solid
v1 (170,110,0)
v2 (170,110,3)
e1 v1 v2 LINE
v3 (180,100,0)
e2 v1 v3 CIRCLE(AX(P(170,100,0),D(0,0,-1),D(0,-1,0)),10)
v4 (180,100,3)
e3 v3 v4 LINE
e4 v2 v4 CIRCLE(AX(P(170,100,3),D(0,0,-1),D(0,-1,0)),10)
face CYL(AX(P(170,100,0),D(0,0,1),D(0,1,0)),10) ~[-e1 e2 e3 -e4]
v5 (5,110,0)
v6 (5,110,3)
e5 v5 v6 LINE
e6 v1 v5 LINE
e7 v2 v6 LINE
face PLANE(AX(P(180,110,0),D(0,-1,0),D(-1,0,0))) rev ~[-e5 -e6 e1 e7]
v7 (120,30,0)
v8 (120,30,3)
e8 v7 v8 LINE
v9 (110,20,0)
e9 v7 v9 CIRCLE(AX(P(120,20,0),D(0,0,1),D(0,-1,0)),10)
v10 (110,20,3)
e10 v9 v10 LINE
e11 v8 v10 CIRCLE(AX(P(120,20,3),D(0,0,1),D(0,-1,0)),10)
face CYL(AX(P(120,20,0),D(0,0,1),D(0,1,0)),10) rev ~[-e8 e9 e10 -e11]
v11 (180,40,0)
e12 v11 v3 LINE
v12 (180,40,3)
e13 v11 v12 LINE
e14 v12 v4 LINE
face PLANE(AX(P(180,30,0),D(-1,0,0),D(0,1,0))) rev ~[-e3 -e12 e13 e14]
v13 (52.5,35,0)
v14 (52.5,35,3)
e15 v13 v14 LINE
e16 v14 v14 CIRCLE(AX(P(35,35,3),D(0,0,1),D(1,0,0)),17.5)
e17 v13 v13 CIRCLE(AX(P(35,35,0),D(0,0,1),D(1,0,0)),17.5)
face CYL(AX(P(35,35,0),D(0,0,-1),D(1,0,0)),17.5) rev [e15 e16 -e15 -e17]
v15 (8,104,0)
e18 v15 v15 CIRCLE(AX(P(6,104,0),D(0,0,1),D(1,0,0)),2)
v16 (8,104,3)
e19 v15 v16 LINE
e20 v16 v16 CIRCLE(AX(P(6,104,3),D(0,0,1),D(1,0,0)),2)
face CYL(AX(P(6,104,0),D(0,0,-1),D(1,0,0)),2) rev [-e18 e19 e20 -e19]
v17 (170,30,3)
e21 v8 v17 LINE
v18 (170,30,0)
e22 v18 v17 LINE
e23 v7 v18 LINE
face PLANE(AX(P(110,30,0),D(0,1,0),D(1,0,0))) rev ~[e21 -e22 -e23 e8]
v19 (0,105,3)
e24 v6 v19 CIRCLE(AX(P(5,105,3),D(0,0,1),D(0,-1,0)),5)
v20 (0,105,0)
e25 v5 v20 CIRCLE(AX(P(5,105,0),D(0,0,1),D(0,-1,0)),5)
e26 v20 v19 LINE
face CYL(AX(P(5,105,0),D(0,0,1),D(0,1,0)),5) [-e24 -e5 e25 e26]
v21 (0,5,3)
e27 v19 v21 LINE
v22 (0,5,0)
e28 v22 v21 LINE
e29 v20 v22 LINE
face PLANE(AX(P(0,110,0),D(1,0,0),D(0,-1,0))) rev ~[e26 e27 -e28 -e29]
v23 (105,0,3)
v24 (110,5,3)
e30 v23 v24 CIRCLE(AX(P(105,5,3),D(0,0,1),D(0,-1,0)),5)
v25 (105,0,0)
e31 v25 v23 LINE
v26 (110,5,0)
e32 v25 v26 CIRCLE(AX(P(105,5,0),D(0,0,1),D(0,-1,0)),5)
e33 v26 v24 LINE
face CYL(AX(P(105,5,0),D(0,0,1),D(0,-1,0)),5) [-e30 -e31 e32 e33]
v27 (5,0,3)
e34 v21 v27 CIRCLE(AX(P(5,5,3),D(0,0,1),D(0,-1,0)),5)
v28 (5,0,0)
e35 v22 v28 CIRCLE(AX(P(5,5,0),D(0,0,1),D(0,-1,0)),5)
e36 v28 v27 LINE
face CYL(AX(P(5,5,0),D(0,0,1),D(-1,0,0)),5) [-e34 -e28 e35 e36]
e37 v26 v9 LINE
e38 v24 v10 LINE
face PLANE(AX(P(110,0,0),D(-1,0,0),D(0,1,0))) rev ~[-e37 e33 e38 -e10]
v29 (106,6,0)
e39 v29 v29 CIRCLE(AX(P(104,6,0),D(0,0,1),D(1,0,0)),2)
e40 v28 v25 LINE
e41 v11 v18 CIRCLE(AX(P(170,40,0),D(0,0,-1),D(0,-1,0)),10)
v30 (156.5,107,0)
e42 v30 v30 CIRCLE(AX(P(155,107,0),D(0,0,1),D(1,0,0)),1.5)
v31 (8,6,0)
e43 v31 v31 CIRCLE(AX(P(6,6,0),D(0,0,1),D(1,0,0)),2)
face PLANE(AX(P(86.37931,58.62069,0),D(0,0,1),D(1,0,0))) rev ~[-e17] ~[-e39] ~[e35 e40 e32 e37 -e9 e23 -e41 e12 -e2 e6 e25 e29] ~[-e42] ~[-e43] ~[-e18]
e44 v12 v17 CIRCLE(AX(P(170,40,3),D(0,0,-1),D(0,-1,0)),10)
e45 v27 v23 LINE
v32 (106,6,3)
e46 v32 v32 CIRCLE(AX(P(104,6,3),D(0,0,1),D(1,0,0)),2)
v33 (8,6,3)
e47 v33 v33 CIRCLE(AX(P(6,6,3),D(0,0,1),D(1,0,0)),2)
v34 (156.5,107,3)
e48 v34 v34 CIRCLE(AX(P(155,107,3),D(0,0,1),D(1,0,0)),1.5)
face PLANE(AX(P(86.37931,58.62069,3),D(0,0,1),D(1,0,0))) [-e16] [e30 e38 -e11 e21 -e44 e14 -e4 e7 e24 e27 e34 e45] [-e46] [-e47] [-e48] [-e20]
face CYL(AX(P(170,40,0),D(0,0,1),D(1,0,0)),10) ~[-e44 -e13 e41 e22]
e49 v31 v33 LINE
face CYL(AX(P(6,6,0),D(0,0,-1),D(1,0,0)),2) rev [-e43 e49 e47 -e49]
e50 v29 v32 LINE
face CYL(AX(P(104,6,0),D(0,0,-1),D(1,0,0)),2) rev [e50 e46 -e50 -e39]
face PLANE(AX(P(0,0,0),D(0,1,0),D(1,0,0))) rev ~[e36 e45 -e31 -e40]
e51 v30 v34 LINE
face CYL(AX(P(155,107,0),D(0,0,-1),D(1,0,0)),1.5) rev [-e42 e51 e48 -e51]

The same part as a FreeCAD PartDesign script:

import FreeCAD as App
import Part
import Sketcher
Q = App.Units.Quantity


def edges_at(feature, points):
    """Names of the edges that pass closest to the given points."""
    edges = feature.Shape.Edges
    near = lambda p: min(range(len(edges)), key=lambda i: edges[i].distToShape(Part.Vertex(*p))[0])
    return sorted({f"Edge{near(p) + 1}" for p in points})

doc = App.newDocument("Part")
body = doc.addObject("PartDesign::Body", "Body")

sketch1 = body.newObject("Sketcher::SketchObject", "Sketch")
sketch1.AttachmentSupport = (doc.getObject("XY_Plane"), [""])
sketch1.MapMode = "FlatFace"
sketch1.addGeometry([
    Part.LineSegment(App.Vector(180, 110, 0), App.Vector(0, 110, 0)),
    Part.LineSegment(App.Vector(0, 110, 0), App.Vector(0, 0, 0)),
    Part.LineSegment(App.Vector(0, 0, 0), App.Vector(110, 0, 0)),
    Part.LineSegment(App.Vector(110, 0, 0), App.Vector(110, 30, 0)),
    Part.LineSegment(App.Vector(110, 30, 0), App.Vector(180, 30, 0)),
    Part.LineSegment(App.Vector(180, 30, 0), App.Vector(180, 110, 0)),
    Part.Circle(App.Vector(6, 6, 0), App.Vector(0, 0, 1), 2),
    Part.Circle(App.Vector(35, 35, 0), App.Vector(0, 0, 1), 17.5),
    Part.Circle(App.Vector(104, 6, 0), App.Vector(0, 0, 1), 2),
    Part.Circle(App.Vector(6, 104, 0), App.Vector(0, 0, 1), 2),
    Part.Circle(App.Vector(155, 107, 0), App.Vector(0, 0, 1), 1.5),
], False)
sketch1.addConstraint([
    Sketcher.Constraint("Coincident", 0, 2, 1, 1),
    Sketcher.Constraint("Coincident", 1, 2, 2, 1),
    Sketcher.Constraint("Coincident", 2, 2, 3, 1),
    Sketcher.Constraint("Coincident", 3, 2, 4, 1),
    Sketcher.Constraint("Coincident", 4, 2, 5, 1),
    Sketcher.Constraint("Coincident", 5, 2, 0, 1),
    Sketcher.Constraint("Horizontal", 0),
    Sketcher.Constraint("Vertical", 1),
    Sketcher.Constraint("Horizontal", 2),
    Sketcher.Constraint("Vertical", 3),
    Sketcher.Constraint("Horizontal", 4),
    Sketcher.Constraint("Vertical", 5),
    Sketcher.Constraint("Coincident", 1, 2, -1, 1),
    Sketcher.Constraint("Equal", 6, 8),
    Sketcher.Constraint("Equal", 8, 9),
    Sketcher.Constraint("Horizontal", 6, 3, 8, 3),
    Sketcher.Constraint("Vertical", 6, 3, 9, 3),
    Sketcher.Constraint("Equal", 2, 1),
    Sketcher.Constraint("Diameter", 6, Q("4 mm")),
    Sketcher.Constraint("Diameter", 7, Q("35 mm")),
    Sketcher.Constraint("Diameter", 10, Q("3 mm")),
    Sketcher.Constraint("DistanceX", 0, 2, 0, 1, Q("180 mm")),
    Sketcher.Constraint("DistanceX", 2, 1, 2, 2, Q("110 mm")),
    Sketcher.Constraint("DistanceY", 3, 1, 3, 2, Q("30 mm")),
    Sketcher.Constraint("DistanceX", -1, 1, 6, 3, Q("6 mm")),
    Sketcher.Constraint("DistanceY", -1, 1, 6, 3, Q("6 mm")),
    Sketcher.Constraint("DistanceX", -1, 1, 7, 3, Q("35 mm")),
    Sketcher.Constraint("DistanceY", -1, 1, 7, 3, Q("35 mm")),
    Sketcher.Constraint("DistanceX", -1, 1, 8, 3, Q("104 mm")),
    Sketcher.Constraint("DistanceY", -1, 1, 9, 3, Q("104 mm")),
    Sketcher.Constraint("DistanceX", -1, 1, 10, 3, Q("155 mm")),
    Sketcher.Constraint("DistanceY", -1, 1, 10, 3, Q("107 mm")),
])
pad1 = body.newObject("PartDesign::Pad", "Pad")
pad1.Profile = sketch1
pad1.Length = 3
doc.recompute()

fillet = body.newObject("PartDesign::Fillet", "Fillet")
fillet.Base = (pad1, edges_at(pad1, [(110, 30, 1.5), (180, 30, 1.5), (180, 110, 1.5)]))
fillet.Radius = 10
doc.recompute()

fillet2 = body.newObject("PartDesign::Fillet", "Fillet001")
fillet2.Base = (fillet, edges_at(fillet, [(110, 0, 1.5), (0, 0, 1.5), (0, 110, 1.5)]))
fillet2.Radius = 5

doc.recompute()
